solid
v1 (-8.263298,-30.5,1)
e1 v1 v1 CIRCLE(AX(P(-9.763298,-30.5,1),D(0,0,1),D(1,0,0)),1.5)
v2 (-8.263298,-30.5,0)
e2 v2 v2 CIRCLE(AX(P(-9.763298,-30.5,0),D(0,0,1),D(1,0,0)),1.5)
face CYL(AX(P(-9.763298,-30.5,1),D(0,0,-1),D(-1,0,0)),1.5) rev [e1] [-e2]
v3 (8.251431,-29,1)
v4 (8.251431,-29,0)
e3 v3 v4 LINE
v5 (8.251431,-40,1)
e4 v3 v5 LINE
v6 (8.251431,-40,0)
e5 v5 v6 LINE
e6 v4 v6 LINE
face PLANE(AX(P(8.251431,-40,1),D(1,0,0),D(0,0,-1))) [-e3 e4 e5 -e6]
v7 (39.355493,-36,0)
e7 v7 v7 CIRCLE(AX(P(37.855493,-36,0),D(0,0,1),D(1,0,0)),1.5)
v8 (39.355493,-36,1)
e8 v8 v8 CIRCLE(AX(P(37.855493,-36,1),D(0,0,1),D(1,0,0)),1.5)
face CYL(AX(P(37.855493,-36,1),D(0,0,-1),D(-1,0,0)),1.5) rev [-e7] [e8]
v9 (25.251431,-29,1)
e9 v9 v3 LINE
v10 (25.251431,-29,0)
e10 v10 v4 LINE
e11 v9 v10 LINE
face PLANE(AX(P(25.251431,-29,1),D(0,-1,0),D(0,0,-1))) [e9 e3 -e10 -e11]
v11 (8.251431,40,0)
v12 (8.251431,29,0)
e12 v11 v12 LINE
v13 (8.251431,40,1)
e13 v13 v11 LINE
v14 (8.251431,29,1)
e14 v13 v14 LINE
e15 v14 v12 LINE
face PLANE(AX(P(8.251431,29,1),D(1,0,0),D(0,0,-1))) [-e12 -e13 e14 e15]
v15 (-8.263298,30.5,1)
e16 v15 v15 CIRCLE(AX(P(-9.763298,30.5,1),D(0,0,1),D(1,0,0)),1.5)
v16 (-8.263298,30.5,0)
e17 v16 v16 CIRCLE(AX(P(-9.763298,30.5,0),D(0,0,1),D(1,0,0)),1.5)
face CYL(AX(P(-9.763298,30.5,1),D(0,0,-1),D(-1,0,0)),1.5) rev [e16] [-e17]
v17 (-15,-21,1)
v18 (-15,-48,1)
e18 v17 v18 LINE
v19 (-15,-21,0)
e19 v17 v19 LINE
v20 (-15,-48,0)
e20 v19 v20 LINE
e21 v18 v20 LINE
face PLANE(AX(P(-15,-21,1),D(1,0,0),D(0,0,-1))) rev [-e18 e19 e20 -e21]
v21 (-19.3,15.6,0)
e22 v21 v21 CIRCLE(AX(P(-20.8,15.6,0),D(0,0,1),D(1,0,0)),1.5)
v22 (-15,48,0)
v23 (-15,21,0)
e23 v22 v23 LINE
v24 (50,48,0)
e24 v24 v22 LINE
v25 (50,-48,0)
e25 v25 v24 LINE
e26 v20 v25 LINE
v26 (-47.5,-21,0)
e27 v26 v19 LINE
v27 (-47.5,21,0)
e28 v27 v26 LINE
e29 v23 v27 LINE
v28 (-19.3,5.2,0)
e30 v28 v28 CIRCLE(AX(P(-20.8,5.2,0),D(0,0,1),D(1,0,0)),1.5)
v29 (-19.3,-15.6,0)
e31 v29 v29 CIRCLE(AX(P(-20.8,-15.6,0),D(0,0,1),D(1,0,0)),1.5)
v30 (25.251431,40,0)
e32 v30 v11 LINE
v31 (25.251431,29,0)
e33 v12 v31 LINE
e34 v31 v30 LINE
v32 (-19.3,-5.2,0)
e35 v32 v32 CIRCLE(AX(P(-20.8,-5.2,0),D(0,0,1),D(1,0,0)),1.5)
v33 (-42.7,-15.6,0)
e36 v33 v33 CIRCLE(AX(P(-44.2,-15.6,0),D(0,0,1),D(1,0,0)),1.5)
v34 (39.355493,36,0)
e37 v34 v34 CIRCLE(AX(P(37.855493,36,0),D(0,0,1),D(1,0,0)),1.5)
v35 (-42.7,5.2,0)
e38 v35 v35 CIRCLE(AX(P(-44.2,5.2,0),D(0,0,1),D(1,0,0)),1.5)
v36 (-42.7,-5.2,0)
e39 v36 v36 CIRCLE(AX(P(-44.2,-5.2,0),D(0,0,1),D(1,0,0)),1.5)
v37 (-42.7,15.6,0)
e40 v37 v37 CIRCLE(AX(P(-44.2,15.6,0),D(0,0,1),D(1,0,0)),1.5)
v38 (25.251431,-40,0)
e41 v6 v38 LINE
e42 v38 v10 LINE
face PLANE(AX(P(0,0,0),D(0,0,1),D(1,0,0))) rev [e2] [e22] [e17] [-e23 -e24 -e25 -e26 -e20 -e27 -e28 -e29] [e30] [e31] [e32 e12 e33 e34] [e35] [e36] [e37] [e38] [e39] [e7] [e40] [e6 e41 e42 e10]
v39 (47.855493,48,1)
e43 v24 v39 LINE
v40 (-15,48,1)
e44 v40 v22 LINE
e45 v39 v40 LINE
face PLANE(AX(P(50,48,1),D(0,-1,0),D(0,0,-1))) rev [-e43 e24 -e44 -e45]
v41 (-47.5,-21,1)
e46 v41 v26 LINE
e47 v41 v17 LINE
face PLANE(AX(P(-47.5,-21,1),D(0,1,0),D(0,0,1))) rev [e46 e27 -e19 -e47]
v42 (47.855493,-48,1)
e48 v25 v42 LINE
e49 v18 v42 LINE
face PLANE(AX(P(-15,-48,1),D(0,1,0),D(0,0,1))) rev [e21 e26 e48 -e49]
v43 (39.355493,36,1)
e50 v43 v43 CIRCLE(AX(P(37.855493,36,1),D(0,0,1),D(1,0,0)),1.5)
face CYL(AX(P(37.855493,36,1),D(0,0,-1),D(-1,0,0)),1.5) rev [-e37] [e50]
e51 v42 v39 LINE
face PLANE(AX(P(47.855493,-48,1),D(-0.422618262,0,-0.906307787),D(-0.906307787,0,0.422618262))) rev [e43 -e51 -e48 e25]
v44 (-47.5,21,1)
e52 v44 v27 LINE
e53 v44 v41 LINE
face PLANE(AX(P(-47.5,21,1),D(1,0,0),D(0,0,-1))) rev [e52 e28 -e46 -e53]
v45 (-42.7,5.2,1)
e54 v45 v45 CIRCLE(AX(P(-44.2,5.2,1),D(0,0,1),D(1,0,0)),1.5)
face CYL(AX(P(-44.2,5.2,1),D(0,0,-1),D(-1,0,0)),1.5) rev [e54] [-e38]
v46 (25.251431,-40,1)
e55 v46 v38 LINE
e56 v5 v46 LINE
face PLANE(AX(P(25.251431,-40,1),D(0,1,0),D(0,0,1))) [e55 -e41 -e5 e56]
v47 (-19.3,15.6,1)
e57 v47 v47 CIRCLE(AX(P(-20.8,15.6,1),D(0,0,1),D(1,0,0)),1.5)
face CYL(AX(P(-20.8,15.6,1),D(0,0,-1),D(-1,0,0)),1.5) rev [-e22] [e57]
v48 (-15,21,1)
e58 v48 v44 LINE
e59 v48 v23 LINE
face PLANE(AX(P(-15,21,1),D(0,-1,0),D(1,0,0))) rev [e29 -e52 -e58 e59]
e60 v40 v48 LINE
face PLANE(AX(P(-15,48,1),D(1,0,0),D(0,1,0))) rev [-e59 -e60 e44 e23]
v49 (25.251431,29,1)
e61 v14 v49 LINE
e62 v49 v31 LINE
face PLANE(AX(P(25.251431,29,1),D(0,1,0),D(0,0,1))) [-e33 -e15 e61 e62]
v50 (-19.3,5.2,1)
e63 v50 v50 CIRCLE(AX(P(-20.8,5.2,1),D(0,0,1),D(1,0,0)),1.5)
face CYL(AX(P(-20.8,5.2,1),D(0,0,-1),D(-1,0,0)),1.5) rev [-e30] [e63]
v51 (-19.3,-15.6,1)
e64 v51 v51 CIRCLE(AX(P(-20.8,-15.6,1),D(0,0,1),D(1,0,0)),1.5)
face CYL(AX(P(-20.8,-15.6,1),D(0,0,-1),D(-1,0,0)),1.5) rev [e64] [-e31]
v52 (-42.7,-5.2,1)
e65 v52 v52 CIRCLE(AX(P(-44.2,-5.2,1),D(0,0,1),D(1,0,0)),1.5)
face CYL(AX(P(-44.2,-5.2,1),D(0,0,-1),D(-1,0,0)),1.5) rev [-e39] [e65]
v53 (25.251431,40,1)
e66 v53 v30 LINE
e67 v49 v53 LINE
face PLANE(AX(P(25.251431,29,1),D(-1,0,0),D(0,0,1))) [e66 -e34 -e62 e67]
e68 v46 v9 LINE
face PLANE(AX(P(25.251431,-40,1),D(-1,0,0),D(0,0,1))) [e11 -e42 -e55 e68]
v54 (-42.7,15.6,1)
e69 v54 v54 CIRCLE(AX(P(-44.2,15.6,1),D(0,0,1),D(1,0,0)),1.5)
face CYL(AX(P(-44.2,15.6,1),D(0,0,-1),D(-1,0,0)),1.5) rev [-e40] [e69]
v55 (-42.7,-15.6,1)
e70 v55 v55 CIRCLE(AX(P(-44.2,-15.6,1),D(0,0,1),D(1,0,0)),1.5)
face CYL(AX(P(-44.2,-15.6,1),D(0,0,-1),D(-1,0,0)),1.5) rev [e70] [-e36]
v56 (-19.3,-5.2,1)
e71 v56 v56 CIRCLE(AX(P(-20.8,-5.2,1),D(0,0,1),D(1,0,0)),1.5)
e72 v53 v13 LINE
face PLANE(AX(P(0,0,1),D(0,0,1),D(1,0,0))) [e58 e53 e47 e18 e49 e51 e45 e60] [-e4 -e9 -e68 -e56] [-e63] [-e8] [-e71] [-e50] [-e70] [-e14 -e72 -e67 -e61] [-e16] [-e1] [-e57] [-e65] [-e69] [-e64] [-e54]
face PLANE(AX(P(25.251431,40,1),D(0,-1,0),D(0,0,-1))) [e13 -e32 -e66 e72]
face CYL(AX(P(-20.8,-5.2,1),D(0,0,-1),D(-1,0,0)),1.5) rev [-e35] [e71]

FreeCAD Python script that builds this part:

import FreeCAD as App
import Part
import Sketcher
Q = App.Units.Quantity


def add_polygon(sketch, points):
    """Adds a closed chain of lines whose ends are joined by coincident constraints."""
    first, n = sketch.GeometryCount, len(points)
    for a, b in zip(points, points[1:] + points[:1]):
        sketch.addGeometry(Part.LineSegment(App.Vector(*a, 0), App.Vector(*b, 0)), False)
    for i in range(n):
        sketch.addConstraint(Sketcher.Constraint("Coincident", first + i, 2, first + (i + 1) % n, 1))

doc = App.newDocument("Part")
body = doc.addObject("PartDesign::Body", "Body")

# Sketch on XY plane
sketch1 = body.newObject("Sketcher::SketchObject", "Sketch")
sketch1.AttachmentSupport = (doc.getObject("XY_Plane"), [""])
sketch1.MapMode = "FlatFace"
add_polygon(sketch1, [(-47.5, -21), (-15, -21), (-15, -48), (50, -48), (50, 48), (-15, 48), (-15, 21), (-47.5, 21)])  # lines 0-7
sketch1.addGeometry(Part.Circle(App.Vector(37.9, 36, 0), App.Vector(0, 0, 1), 1.5), False)  # 8
add_polygon(sketch1, [(8.3, 40), (25.3, 40), (25.3, 29), (8.3, 29)])  # lines 9-12
sketch1.addGeometry(Part.Circle(App.Vector(-9.8, 30.5, 0), App.Vector(0, 0, 1), 1.5), False)  # 13
sketch1.addGeometry(Part.Circle(App.Vector(-20.8, 15.6, 0), App.Vector(0, 0, 1), 1.5), False)  # 14
sketch1.addGeometry(Part.Circle(App.Vector(-20.8, 5.2, 0), App.Vector(0, 0, 1), 1.5), False)  # 15
sketch1.addGeometry(Part.Circle(App.Vector(-44.2, 15.6, 0), App.Vector(0, 0, 1), 1.5), False)  # 16
sketch1.addGeometry(Part.Circle(App.Vector(-44.2, 5.2, 0), App.Vector(0, 0, 1), 1.5), False)  # 17
sketch1.addGeometry(Part.Circle(App.Vector(37.9, -36, 0), App.Vector(0, 0, 1), 1.5), False)  # 18
add_polygon(sketch1, [(8.3, -29), (25.3, -29), (25.3, -40), (8.3, -40)])  # lines 19-22
sketch1.addGeometry(Part.Circle(App.Vector(-20.8, -5.2, 0), App.Vector(0, 0, 1), 1.5), False)  # 23
sketch1.addGeometry(Part.Circle(App.Vector(-20.8, -15.6, 0), App.Vector(0, 0, 1), 1.5), False)  # 24
sketch1.addGeometry(Part.Circle(App.Vector(-44.2, -5.2, 0), App.Vector(0, 0, 1), 1.5), False)  # 25
sketch1.addGeometry(Part.Circle(App.Vector(-44.2, -15.6, 0), App.Vector(0, 0, 1), 1.5), False)  # 26
sketch1.addGeometry(Part.Circle(App.Vector(-9.8, -30.5, 0), App.Vector(0, 0, 1), 1.5), False)  # 27
sketch1.addConstraint(Sketcher.Constraint("Horizontal", 0))
sketch1.addConstraint(Sketcher.Constraint("Vertical", 1))
sketch1.addConstraint(Sketcher.Constraint("Horizontal", 2))
sketch1.addConstraint(Sketcher.Constraint("Vertical", 3))
sketch1.addConstraint(Sketcher.Constraint("Horizontal", 4))
sketch1.addConstraint(Sketcher.Constraint("Vertical", 5))
sketch1.addConstraint(Sketcher.Constraint("Horizontal", 6))
sketch1.addConstraint(Sketcher.Constraint("Vertical", 7))
sketch1.addConstraint(Sketcher.Constraint("Horizontal", 9))
sketch1.addConstraint(Sketcher.Constraint("Vertical", 10))
sketch1.addConstraint(Sketcher.Constraint("Horizontal", 11))
sketch1.addConstraint(Sketcher.Constraint("Vertical", 12))
sketch1.addConstraint(Sketcher.Constraint("Horizontal", 19))
sketch1.addConstraint(Sketcher.Constraint("Vertical", 20))
sketch1.addConstraint(Sketcher.Constraint("Horizontal", 21))
sketch1.addConstraint(Sketcher.Constraint("Vertical", 22))
sketch1.addConstraint(Sketcher.Constraint("Equal", 8, 13))
sketch1.addConstraint(Sketcher.Constraint("Equal", 13, 14))
sketch1.addConstraint(Sketcher.Constraint("Equal", 14, 15))
sketch1.addConstraint(Sketcher.Constraint("Equal", 15, 16))
sketch1.addConstraint(Sketcher.Constraint("Equal", 16, 17))
sketch1.addConstraint(Sketcher.Constraint("Equal", 17, 18))
sketch1.addConstraint(Sketcher.Constraint("Equal", 18, 23))
sketch1.addConstraint(Sketcher.Constraint("Equal", 23, 24))
sketch1.addConstraint(Sketcher.Constraint("Equal", 24, 25))
sketch1.addConstraint(Sketcher.Constraint("Equal", 25, 26))
sketch1.addConstraint(Sketcher.Constraint("Equal", 26, 27))
sketch1.addConstraint(Sketcher.Constraint("Symmetric", 8, 3, 18, 3, -1))
sketch1.addConstraint(Sketcher.Constraint("Symmetric", 15, 3, 23, 3, -1))
sketch1.addConstraint(Sketcher.Constraint("Symmetric", 14, 3, 24, 3, -1))
sketch1.addConstraint(Sketcher.Constraint("Symmetric", 17, 3, 25, 3, -1))
sketch1.addConstraint(Sketcher.Constraint("Symmetric", 16, 3, 26, 3, -1))
sketch1.addConstraint(Sketcher.Constraint("Symmetric", 13, 3, 27, 3, -1))
sketch1.addConstraint(Sketcher.Constraint("Symmetric", 1, 2, 4, 2, -1))
sketch1.addConstraint(Sketcher.Constraint("Symmetric", 10, 2, 19, 2, -1))
sketch1.addConstraint(Sketcher.Constraint("Symmetric", 12, 2, 21, 2, -1))
sketch1.addConstraint(Sketcher.Constraint("Horizontal", 14, 3, 16, 3))
sketch1.addConstraint(Sketcher.Constraint("Horizontal", 15, 3, 17, 3))
sketch1.addConstraint(Sketcher.Constraint("Vertical", 14, 3, 15, 3))
sketch1.addConstraint(Sketcher.Constraint("Vertical", 16, 3, 17, 3))
sketch1.addConstraint(Sketcher.Constraint("Equal", 1, 5))
sketch1.addConstraint(Sketcher.Constraint("Diameter", 8, Q("3 mm")))
sketch1.addConstraint(Sketcher.Constraint("DistanceX", 2, 1, 2, 2, Q("65 mm")))
sketch1.addConstraint(Sketcher.Constraint("DistanceX", 9, 1, 9, 2, Q("17 mm")))
sketch1.addConstraint(Sketcher.Constraint("DistanceY", 1, 2, 1, 1, Q("27 mm")))
sketch1.addConstraint(Sketcher.Constraint("DistanceY", 3, 1, 3, 2, Q("96 mm")))
sketch1.addConstraint(Sketcher.Constraint("DistanceY", 10, 2, 10, 1, Q("11 mm")))
sketch1.addConstraint(Sketcher.Constraint("DistanceX", 0, 1, 0, 2, Q("32.5 mm")))
sketch1.addConstraint(Sketcher.Constraint("DistanceY", -1, 1, 8, 3, Q("36 mm")))
sketch1.addConstraint(Sketcher.Constraint("DistanceX", 0, 2, -1, 1, Q("15 mm")))
sketch1.addConstraint(Sketcher.Constraint("DistanceY", -1, 1, 9, 2, Q("40 mm")))
sketch1.addConstraint(Sketcher.Constraint("DistanceY", -1, 1, 13, 3, Q("30.5 mm")))
sketch1.addConstraint(Sketcher.Constraint("DistanceX", 14, 3, -1, 1, Q("20.8 mm")))
sketch1.addConstraint(Sketcher.Constraint("DistanceY", -1, 1, 14, 3, Q("15.6 mm")))
sketch1.addConstraint(Sketcher.Constraint("DistanceY", -1, 1, 15, 3, Q("5.2 mm")))
sketch1.addConstraint(Sketcher.Constraint("DistanceX", 16, 3, -1, 1, Q("44.2 mm")))
sketch1.addConstraint(Sketcher.Constraint("DistanceX", -1, 1, 9, 2, Q("25.251431 mm")))
sketch1.addConstraint(Sketcher.Constraint("DistanceX", 13, 3, 8, 3, Q("47.618791 mm")))
sketch1.addConstraint(Sketcher.Constraint("DistanceX", 13, 3, 9, 2, Q("35.014729 mm")))
pad1 = body.newObject("PartDesign::Pad", "Pad")
pad1.Profile = sketch1
pad1.Length = 1

# Sketch on XZ plane
sketch2 = body.newObject("Sketcher::SketchObject", "Sketch001")
sketch2.AttachmentSupport = (doc.getObject("XZ_Plane"), [""])
sketch2.MapMode = "FlatFace"
sketch2.AttachmentOffset = App.Placement(App.Vector(0, 0, -48), App.Rotation())
add_polygon(sketch2, [(50, 0), (47.9, 1), (50, 1)])  # lines 0-2
sketch2.addConstraint(Sketcher.Constraint("Horizontal", 1))
sketch2.addConstraint(Sketcher.Constraint("Vertical", 2))
sketch2.addConstraint(Sketcher.Constraint("PointOnObject", 2, 2, -1))
sketch2.addConstraint(Sketcher.Constraint("DistanceY", 2, 2, 2, 1, Q("1 mm")))
sketch2.addConstraint(Sketcher.Constraint("Angle", 0, Q("155 deg")))
sketch2.addConstraint(Sketcher.Constraint("DistanceX", -1, 1, 1, 2, Q("50 mm")))
pocket1 = body.newObject("PartDesign::Pocket", "Pocket")
pocket1.Profile = sketch2
pocket1.Type = "ThroughAll"
pocket1.Reversed = True

doc.recompute()
